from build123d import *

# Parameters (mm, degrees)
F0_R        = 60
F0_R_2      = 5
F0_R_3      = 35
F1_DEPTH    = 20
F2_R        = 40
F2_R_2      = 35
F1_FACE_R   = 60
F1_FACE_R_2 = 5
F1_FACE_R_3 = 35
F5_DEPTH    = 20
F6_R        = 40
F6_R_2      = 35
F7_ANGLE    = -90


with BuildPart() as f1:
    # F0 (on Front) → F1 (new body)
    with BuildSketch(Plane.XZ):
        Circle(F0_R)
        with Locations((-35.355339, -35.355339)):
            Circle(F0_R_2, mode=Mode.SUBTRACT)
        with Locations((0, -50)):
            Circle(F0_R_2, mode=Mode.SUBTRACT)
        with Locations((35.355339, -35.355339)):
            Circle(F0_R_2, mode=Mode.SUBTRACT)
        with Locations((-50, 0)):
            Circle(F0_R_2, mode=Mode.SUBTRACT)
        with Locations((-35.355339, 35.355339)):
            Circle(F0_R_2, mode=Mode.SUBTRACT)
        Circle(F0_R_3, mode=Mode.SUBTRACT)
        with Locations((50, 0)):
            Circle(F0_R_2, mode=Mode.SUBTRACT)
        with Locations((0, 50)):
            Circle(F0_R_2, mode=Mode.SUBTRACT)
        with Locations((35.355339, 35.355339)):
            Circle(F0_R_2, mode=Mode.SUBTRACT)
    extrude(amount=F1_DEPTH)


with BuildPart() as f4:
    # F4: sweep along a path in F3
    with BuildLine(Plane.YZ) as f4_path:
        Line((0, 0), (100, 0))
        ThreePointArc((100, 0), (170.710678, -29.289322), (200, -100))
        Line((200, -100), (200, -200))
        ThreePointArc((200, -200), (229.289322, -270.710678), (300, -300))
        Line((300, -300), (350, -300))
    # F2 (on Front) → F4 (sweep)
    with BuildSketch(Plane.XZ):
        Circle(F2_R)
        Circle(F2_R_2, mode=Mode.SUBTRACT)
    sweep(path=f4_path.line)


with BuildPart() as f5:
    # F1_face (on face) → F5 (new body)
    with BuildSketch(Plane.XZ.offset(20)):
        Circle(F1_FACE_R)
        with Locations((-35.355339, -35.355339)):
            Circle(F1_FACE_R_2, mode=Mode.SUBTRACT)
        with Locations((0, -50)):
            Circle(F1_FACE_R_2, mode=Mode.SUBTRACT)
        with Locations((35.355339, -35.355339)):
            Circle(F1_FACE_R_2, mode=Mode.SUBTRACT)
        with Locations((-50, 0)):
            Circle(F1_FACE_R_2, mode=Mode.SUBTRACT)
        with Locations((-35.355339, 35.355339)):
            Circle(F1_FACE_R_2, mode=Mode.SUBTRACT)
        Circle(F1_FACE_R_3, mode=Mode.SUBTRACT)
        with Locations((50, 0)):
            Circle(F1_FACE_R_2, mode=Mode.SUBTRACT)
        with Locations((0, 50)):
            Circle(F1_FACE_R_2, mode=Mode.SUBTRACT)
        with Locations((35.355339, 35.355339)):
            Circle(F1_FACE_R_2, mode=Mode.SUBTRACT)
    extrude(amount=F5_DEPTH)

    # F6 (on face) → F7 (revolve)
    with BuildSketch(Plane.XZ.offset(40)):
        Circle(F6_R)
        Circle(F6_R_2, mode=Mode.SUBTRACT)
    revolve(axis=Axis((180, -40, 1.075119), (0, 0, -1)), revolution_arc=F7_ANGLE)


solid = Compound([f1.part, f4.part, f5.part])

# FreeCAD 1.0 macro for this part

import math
import FreeCAD as App
import Part
import Sketcher
Q = App.Units.Quantity

doc = App.newDocument("Part")
body = doc.addObject("PartDesign::Body", "Body")

sketch1 = doc.addObject("Sketcher::SketchObject", "Sketch")
body.addObject(sketch1)
sketch1.AttachmentSupport = (doc.XZ_Plane, [""])
sketch1.MapMode = "FlatFace"
sketch1.addGeometry(Part.Circle(App.Vector(0, 0, 0), App.Vector(0, 0, 1), 60), False)
sketch1.addGeometry(Part.Circle(App.Vector(-35, -35, 0), App.Vector(0, 0, 1), 5), False)
sketch1.addGeometry(Part.Circle(App.Vector(0, -50, 0), App.Vector(0, 0, 1), 5), False)
sketch1.addGeometry(Part.Circle(App.Vector(35, -35, 0), App.Vector(0, 0, 1), 5), False)
sketch1.addGeometry(Part.Circle(App.Vector(-50, 0, 0), App.Vector(0, 0, 1), 5), False)
sketch1.addGeometry(Part.Circle(App.Vector(-35, 35, 0), App.Vector(0, 0, 1), 5), False)
sketch1.addGeometry(Part.Circle(App.Vector(0, 0, 0), App.Vector(0, 0, 1), 35), False)
sketch1.addGeometry(Part.Circle(App.Vector(50, 0, 0), App.Vector(0, 0, 1), 5), False)
sketch1.addGeometry(Part.Circle(App.Vector(0, 50, 0), App.Vector(0, 0, 1), 5), False)
sketch1.addGeometry(Part.Circle(App.Vector(35, 35, 0), App.Vector(0, 0, 1), 5), False)
sketch1.addConstraint(Sketcher.Constraint("Coincident", 0, 3, -1, 1))
sketch1.addConstraint(Sketcher.Constraint("Coincident", 6, 3, -1, 1))
sketch1.addConstraint(Sketcher.Constraint("Equal", 1, 2))
sketch1.addConstraint(Sketcher.Constraint("Equal", 2, 3))
sketch1.addConstraint(Sketcher.Constraint("Equal", 3, 4))
sketch1.addConstraint(Sketcher.Constraint("Equal", 4, 5))
sketch1.addConstraint(Sketcher.Constraint("Equal", 5, 7))
sketch1.addConstraint(Sketcher.Constraint("Equal", 7, 8))
sketch1.addConstraint(Sketcher.Constraint("Equal", 8, 9))
sketch1.addConstraint(Sketcher.Constraint("Symmetric", 3, 3, 5, 3, -1, 1))
sketch1.addConstraint(Sketcher.Constraint("Symmetric", 4, 3, 7, 3, -1, 1))
sketch1.addConstraint(Sketcher.Constraint("Symmetric", 2, 3, 8, 3, -1, 1))
sketch1.addConstraint(Sketcher.Constraint("Symmetric", 1, 3, 9, 3, -1, 1))
sketch1.addConstraint(Sketcher.Constraint("Symmetric", 1, 3, 3, 3, -2))
sketch1.addConstraint(Sketcher.Constraint("PointOnObject", 2, 3, -2))
sketch1.addConstraint(Sketcher.Constraint("PointOnObject", 4, 3, -1))
sketch1.addConstraint(Sketcher.Constraint("Diameter", 0, Q("120 mm")))
sketch1.addConstraint(Sketcher.Constraint("Diameter", 1, Q("10 mm")))
sketch1.addConstraint(Sketcher.Constraint("Diameter", 6, Q("70 mm")))
sketch1.addConstraint(Sketcher.Constraint("DistanceY", 2, 3, -1, 1, Q("50 mm")))
sketch1.addConstraint(Sketcher.Constraint("DistanceX", 4, 3, -1, 1, Q("50 mm")))
sketch1.addConstraint(Sketcher.Constraint("DistanceX", 1, 3, -1, 1, Q("35.355339 mm")))
sketch1.addConstraint(Sketcher.Constraint("DistanceY", 1, 3, -1, 1, Q("35.355339 mm")))
pad1 = doc.addObject("PartDesign::Pad", "Pad")
body.addObject(pad1)
pad1.Profile = sketch1
pad1.Length = 20
body2 = doc.addObject("PartDesign::Body", "Body001")

sketch2 = doc.addObject("Sketcher::SketchObject", "Sketch001")
body2.addObject(sketch2)
sketch2.AttachmentSupport = (doc.getObject("XZ_Plane001"), [""])
sketch2.MapMode = "FlatFace"
sketch2.addGeometry(Part.Circle(App.Vector(0, 0, 0), App.Vector(0, 0, 1), 40), False)
sketch2.addGeometry(Part.Circle(App.Vector(0, 0, 0), App.Vector(0, 0, 1), 35), False)
sketch2.addConstraint(Sketcher.Constraint("Coincident", 0, 3, -1, 1))
sketch2.addConstraint(Sketcher.Constraint("Coincident", 1, 3, -1, 1))
sketch2.addConstraint(Sketcher.Constraint("Diameter", 0, Q("80 mm")))
sketch2.addConstraint(Sketcher.Constraint("Diameter", 1, Q("70 mm")))

sketch3 = doc.addObject("Sketcher::SketchObject", "Sketch002")
body2.addObject(sketch3)
sketch3.AttachmentSupport = (doc.getObject("YZ_Plane001"), [""])
sketch3.MapMode = "FlatFace"
sketch3.addGeometry(Part.LineSegment(App.Vector(0, 0, 0), App.Vector(100, 0, 0)), False)
sketch3.addGeometry(Part.ArcOfCircle(Part.Circle(App.Vector(100, -100, 0), App.Vector(0, 0, 1), 100), math.radians(0), math.radians(90)), False)
sketch3.addGeometry(Part.LineSegment(App.Vector(200, -100, 0), App.Vector(200, -200, 0)), False)
sketch3.addGeometry(Part.ArcOfCircle(Part.Circle(App.Vector(300, -200, 0), App.Vector(0, 0, 1), 100), math.radians(-180), math.radians(-90)), False)
sketch3.addGeometry(Part.LineSegment(App.Vector(300, -300, 0), App.Vector(350, -300, 0)), False)
sketch3.addConstraint(Sketcher.Constraint("Tangent", 0, 2, 1, 2))
sketch3.addConstraint(Sketcher.Constraint("Tangent", 1, 1, 2, 1))
sketch3.addConstraint(Sketcher.Constraint("Tangent", 2, 2, 3, 1))
sketch3.addConstraint(Sketcher.Constraint("Tangent", 3, 2, 4, 1))
sketch3.addConstraint(Sketcher.Constraint("Horizontal", 0))
sketch3.addConstraint(Sketcher.Constraint("Vertical", 2))
sketch3.addConstraint(Sketcher.Constraint("Horizontal", 4))
sketch3.addConstraint(Sketcher.Constraint("Coincident", 0, 1, -1, 1))
sketch3.addConstraint(Sketcher.Constraint("Equal", 1, 3))
sketch3.addConstraint(Sketcher.Constraint("Equal", 0, 2))
sketch3.addConstraint(Sketcher.Constraint("Radius", 1, Q("100 mm")))
sketch3.addConstraint(Sketcher.Constraint("DistanceX", 0, 1, 0, 2, Q("100 mm")))
sketch3.addConstraint(Sketcher.Constraint("DistanceX", 4, 1, 4, 2, Q("50 mm")))
doc.recompute()

additivepipe = doc.addObject("PartDesign::AdditivePipe", "AdditivePipe")
body2.addObject(additivepipe)
additivepipe.Profile = sketch2
additivepipe.Spine = (sketch3, ["Edge1", "Edge2", "Edge3", "Edge4", "Edge5"])
body3 = doc.addObject("PartDesign::Body", "Body002")

sketch4 = doc.addObject("Sketcher::SketchObject", "Sketch003")
body3.addObject(sketch4)
sketch4.AttachmentSupport = (doc.getObject("XZ_Plane002"), [""])
sketch4.MapMode = "FlatFace"
sketch4.AttachmentOffset = App.Placement(App.Vector(0, 0, 20), App.Rotation())
sketch4.addGeometry(Part.Circle(App.Vector(0, 0, 0), App.Vector(0, 0, 1), 60), False)
sketch4.addGeometry(Part.Circle(App.Vector(-35, -35, 0), App.Vector(0, 0, 1), 5), False)
sketch4.addGeometry(Part.Circle(App.Vector(0, -50, 0), App.Vector(0, 0, 1), 5), False)
sketch4.addGeometry(Part.Circle(App.Vector(35, -35, 0), App.Vector(0, 0, 1), 5), False)
sketch4.addGeometry(Part.Circle(App.Vector(-50, 0, 0), App.Vector(0, 0, 1), 5), False)
sketch4.addGeometry(Part.Circle(App.Vector(-35, 35, 0), App.Vector(0, 0, 1), 5), False)
sketch4.addGeometry(Part.Circle(App.Vector(0, 0, 0), App.Vector(0, 0, 1), 35), False)
sketch4.addGeometry(Part.Circle(App.Vector(50, 0, 0), App.Vector(0, 0, 1), 5), False)
sketch4.addGeometry(Part.Circle(App.Vector(0, 50, 0), App.Vector(0, 0, 1), 5), False)
sketch4.addGeometry(Part.Circle(App.Vector(35, 35, 0), App.Vector(0, 0, 1), 5), False)
sketch4.addConstraint(Sketcher.Constraint("Coincident", 0, 3, -1, 1))
sketch4.addConstraint(Sketcher.Constraint("Coincident", 6, 3, -1, 1))
sketch4.addConstraint(Sketcher.Constraint("Equal", 1, 2))
sketch4.addConstraint(Sketcher.Constraint("Equal", 2, 3))
sketch4.addConstraint(Sketcher.Constraint("Equal", 3, 4))
sketch4.addConstraint(Sketcher.Constraint("Equal", 4, 5))
sketch4.addConstraint(Sketcher.Constraint("Equal", 5, 7))
sketch4.addConstraint(Sketcher.Constraint("Equal", 7, 8))
sketch4.addConstraint(Sketcher.Constraint("Equal", 8, 9))
sketch4.addConstraint(Sketcher.Constraint("Symmetric", 3, 3, 5, 3, -1, 1))
sketch4.addConstraint(Sketcher.Constraint("Symmetric", 4, 3, 7, 3, -1, 1))
sketch4.addConstraint(Sketcher.Constraint("Symmetric", 2, 3, 8, 3, -1, 1))
sketch4.addConstraint(Sketcher.Constraint("Symmetric", 1, 3, 9, 3, -1, 1))
sketch4.addConstraint(Sketcher.Constraint("Symmetric", 1, 3, 3, 3, -2))
sketch4.addConstraint(Sketcher.Constraint("PointOnObject", 2, 3, -2))
sketch4.addConstraint(Sketcher.Constraint("PointOnObject", 4, 3, -1))
sketch4.addConstraint(Sketcher.Constraint("Diameter", 0, Q("120 mm")))
sketch4.addConstraint(Sketcher.Constraint("Diameter", 1, Q("10 mm")))
sketch4.addConstraint(Sketcher.Constraint("Diameter", 6, Q("70 mm")))
sketch4.addConstraint(Sketcher.Constraint("DistanceY", 2, 3, -1, 1, Q("50 mm")))
sketch4.addConstraint(Sketcher.Constraint("DistanceX", 4, 3, -1, 1, Q("50 mm")))
sketch4.addConstraint(Sketcher.Constraint("DistanceX", 1, 3, -1, 1, Q("35.355339 mm")))
sketch4.addConstraint(Sketcher.Constraint("DistanceY", 1, 3, -1, 1, Q("35.355339 mm")))
pad2 = doc.addObject("PartDesign::Pad", "Pad001")
body3.addObject(pad2)
pad2.Profile = sketch4
pad2.Length = 20

sketch5 = doc.addObject("Sketcher::SketchObject", "Sketch004")
body3.addObject(sketch5)
sketch5.AttachmentSupport = (doc.getObject("XZ_Plane002"), [""])
sketch5.MapMode = "FlatFace"
sketch5.AttachmentOffset = App.Placement(App.Vector(0, 0, 40), App.Rotation())
sketch5.addGeometry(Part.Circle(App.Vector(0, 0, 0), App.Vector(0, 0, 1), 40), False)
sketch5.addGeometry(Part.Circle(App.Vector(0, 0, 0), App.Vector(0, 0, 1), 35), False)
sketch5.addGeometry(Part.LineSegment(App.Vector(180, 0, 0), App.Vector(180, -10, 0)), True)
sketch5.addConstraint(Sketcher.Constraint("Vertical", 2))
sketch5.addConstraint(Sketcher.Constraint("Coincident", 0, 3, -1, 1))
sketch5.addConstraint(Sketcher.Constraint("Coincident", 1, 3, -1, 1))
sketch5.addConstraint(Sketcher.Constraint("PointOnObject", 2, 1, -1))
sketch5.addConstraint(Sketcher.Constraint("Diameter", 0, Q("80 mm")))
sketch5.addConstraint(Sketcher.Constraint("Diameter", 1, Q("70 mm")))
sketch5.addConstraint(Sketcher.Constraint("DistanceY", 2, 2, 2, 1, Q("10 mm")))
sketch5.addConstraint(Sketcher.Constraint("DistanceX", -1, 1, 2, 1, Q("180 mm")))
revolution = doc.addObject("PartDesign::Revolution", "Revolution")
body3.addObject(revolution)
revolution.Profile = sketch5
revolution.ReferenceAxis = (sketch5, ["Axis0"])
revolution.Angle = 90
revolution.Reversed = True

doc.recompute()
